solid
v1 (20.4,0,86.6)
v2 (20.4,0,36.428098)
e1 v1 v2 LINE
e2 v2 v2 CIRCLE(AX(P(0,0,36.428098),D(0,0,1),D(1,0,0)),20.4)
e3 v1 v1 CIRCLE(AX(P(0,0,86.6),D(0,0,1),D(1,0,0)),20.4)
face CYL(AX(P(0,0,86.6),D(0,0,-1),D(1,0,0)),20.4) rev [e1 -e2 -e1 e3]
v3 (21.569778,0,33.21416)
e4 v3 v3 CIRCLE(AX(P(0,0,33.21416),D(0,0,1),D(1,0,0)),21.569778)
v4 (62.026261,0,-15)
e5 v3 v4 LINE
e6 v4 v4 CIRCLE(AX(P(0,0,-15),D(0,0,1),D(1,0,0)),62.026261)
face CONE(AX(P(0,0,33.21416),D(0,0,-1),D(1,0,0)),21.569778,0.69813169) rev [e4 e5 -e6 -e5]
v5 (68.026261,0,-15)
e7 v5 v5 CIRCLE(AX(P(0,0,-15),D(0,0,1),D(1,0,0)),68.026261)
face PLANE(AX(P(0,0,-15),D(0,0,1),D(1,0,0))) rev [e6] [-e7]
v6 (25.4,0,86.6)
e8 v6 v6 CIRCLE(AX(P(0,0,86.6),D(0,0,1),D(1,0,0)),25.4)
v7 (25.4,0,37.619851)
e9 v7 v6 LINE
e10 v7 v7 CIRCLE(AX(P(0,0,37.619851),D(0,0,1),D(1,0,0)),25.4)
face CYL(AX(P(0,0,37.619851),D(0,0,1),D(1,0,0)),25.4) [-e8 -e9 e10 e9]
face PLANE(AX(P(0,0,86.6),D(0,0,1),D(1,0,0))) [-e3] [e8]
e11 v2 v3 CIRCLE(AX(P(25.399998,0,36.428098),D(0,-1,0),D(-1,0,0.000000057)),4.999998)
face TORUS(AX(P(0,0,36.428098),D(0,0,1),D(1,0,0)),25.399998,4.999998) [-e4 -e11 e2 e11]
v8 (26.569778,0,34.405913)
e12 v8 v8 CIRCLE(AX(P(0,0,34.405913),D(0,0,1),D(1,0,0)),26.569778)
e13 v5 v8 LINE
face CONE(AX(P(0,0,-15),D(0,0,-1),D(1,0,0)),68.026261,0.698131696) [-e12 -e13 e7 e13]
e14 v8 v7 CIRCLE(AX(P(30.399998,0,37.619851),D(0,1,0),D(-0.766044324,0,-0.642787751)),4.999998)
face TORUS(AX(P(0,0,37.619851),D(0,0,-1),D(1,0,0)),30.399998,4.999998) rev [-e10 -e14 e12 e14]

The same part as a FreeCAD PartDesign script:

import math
import FreeCAD as App
import Part
import Sketcher
Q = App.Units.Quantity

doc = App.newDocument("Part")
params = doc.addObject("Spreadsheet::Sheet", "Params")
for row, (alias, value) in enumerate([
    ("sketch1_radius", "4.999998 mm"),
    ("sketch1_width", "6 mm"),
    ("revolution_angle", "360 deg"),
], start=1):
    params.set(f"A{row}", alias)
    params.set(f"B{row}", "=" + value)
    params.setAlias(f"B{row}", alias)

body = doc.addObject("PartDesign::Body", "Body")

# Sketch on XZ plane
sketch1 = body.newObject("Sketcher::SketchObject", "Sketch")
sketch1.AttachmentSupport = (doc.getObject("XZ_Plane"), [""])
sketch1.MapMode = "FlatFace"
sketch1.addGeometry([
    Part.LineSegment(App.Vector(25.4, 37.6, 0), App.Vector(25.4, 86.6, 0)),  # 0
    Part.LineSegment(App.Vector(25.4, 86.6, 0), App.Vector(20.4, 86.6, 0)),  # 1
    Part.LineSegment(App.Vector(20.4, 86.6, 0), App.Vector(20.4, 36.4, 0)),  # 2
    Part.ArcOfCircle(Part.Circle(App.Vector(25.4, 36.4, 0), App.Vector(0, 0, 1), 5), math.radians(180), math.radians(220)),  # 3
    Part.LineSegment(App.Vector(21.6, 33.2, 0), App.Vector(62, -15, 0)),  # 4
    Part.LineSegment(App.Vector(62, -15, 0), App.Vector(68, -15, 0)),  # 5
    Part.LineSegment(App.Vector(68, -15, 0), App.Vector(26.6, 34.4, 0)),  # 6
    Part.ArcOfCircle(Part.Circle(App.Vector(30.4, 37.6, 0), App.Vector(0, 0, 1), 5), math.radians(180), math.radians(220)),  # 7
], False)
sketch1.addConstraint([
    Sketcher.Constraint("Coincident", 0, 2, 1, 1),
    Sketcher.Constraint("Coincident", 1, 2, 2, 1),
    Sketcher.Constraint("Tangent", 2, 2, 3, 1),
    Sketcher.Constraint("Tangent", 3, 2, 4, 1),
    Sketcher.Constraint("Coincident", 4, 2, 5, 1),
    Sketcher.Constraint("Coincident", 5, 2, 6, 1),
    Sketcher.Constraint("Tangent", 6, 2, 7, 2),
    Sketcher.Constraint("Tangent", 7, 1, 0, 1),
    Sketcher.Constraint("Vertical", 0),
    Sketcher.Constraint("Horizontal", 1),
    Sketcher.Constraint("Vertical", 2),
    Sketcher.Constraint("Horizontal", 5),
    Sketcher.Constraint("Equal", 3, 7),
    Sketcher.Constraint("Parallel", 4, 6),
    Sketcher.Constraint("Vertical", 3, 3, 0, 2),
    Sketcher.Constraint("Radius", 3, 4.999998),
    Sketcher.Constraint("DistanceX", 5, 1, 5, 2, 6.0),
    Sketcher.Constraint("Angle", 4, Q("-50.000001 deg")),
    Sketcher.Constraint("DistanceY", 4, 2, -1, 1, 15.0),
    Sketcher.Constraint("DistanceX", -1, 1, 3, 3, 25.399998),
    Sketcher.Constraint("DistanceY", -1, 1, 0, 2, 86.6),
    Sketcher.Constraint("DistanceY", 2, 2, 2, 1, 50.171902),
])
sketch1.setExpression("Constraints[15]", "Params.sketch1_radius")
sketch1.setExpression("Constraints[16]", "Params.sketch1_width")
revolution = body.newObject("PartDesign::Revolution", "Revolution")
revolution.Profile = sketch1
revolution.ReferenceAxis = (sketch1, ["V_Axis"])
revolution.setExpression("Angle", "Params.revolution_angle")

doc.recompute()
